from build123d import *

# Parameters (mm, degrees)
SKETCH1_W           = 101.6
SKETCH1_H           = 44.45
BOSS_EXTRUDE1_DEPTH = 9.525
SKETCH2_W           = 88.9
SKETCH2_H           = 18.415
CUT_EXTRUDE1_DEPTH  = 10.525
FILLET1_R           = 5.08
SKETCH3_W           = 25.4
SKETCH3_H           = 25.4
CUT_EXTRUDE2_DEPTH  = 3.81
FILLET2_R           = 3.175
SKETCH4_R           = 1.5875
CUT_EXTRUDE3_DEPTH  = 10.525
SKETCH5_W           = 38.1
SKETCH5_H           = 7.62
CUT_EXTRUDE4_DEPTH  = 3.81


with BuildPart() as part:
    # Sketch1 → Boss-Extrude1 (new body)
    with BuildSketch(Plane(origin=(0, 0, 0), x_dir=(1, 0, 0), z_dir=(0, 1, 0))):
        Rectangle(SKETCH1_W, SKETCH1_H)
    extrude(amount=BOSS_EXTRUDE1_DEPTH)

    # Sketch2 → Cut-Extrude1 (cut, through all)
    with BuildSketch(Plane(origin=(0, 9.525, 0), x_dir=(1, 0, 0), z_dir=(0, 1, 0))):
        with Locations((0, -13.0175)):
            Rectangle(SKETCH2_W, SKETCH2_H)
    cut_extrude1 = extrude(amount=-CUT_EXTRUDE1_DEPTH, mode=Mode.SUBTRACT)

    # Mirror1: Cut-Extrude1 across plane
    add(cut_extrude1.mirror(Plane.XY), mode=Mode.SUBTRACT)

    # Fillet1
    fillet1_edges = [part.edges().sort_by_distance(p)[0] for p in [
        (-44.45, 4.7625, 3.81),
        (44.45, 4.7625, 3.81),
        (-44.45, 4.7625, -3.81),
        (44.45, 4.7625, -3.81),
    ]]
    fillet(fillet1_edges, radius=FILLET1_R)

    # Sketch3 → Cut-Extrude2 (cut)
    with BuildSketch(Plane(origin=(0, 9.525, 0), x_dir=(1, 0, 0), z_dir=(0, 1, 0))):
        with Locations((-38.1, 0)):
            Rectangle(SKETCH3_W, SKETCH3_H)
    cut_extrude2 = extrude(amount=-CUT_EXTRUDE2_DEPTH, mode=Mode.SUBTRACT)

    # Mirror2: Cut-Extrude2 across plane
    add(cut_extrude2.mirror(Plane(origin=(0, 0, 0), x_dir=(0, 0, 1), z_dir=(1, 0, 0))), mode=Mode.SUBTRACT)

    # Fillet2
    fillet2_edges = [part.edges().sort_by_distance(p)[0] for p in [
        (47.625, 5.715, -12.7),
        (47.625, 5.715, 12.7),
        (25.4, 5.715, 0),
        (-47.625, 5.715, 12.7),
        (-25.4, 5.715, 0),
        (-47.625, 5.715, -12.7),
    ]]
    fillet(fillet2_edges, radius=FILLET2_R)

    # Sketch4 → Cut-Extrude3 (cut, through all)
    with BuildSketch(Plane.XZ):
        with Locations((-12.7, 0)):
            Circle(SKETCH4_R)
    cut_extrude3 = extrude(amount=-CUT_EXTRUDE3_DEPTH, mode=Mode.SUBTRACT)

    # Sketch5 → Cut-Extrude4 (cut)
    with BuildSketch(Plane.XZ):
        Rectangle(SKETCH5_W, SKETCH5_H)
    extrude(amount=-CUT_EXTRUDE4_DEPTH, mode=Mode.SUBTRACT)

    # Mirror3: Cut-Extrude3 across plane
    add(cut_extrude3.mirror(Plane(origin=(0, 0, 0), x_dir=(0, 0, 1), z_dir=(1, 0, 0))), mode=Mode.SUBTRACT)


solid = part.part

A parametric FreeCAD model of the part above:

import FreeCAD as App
import Part
import Sketcher

V = App.Vector
Q = App.Units.Quantity


def edges_at(feature, points):
    """Names of the edges that pass closest to the given points."""
    edges = feature.Shape.Edges
    near = lambda p: min(range(len(edges)), key=lambda i: edges[i].distToShape(Part.Vertex(*p))[0])
    return sorted({f"Edge{near(p) + 1}" for p in points})


def add_polygon(sketch, points):
    """Adds a closed chain of lines whose ends are joined by coincident constraints."""
    first, n = sketch.GeometryCount, len(points)
    for a, b in zip(points, points[1:] + points[:1]):
        sketch.addGeometry(Part.LineSegment(App.Vector(*a, 0), App.Vector(*b, 0)), False)
    for i in range(n):
        sketch.addConstraint(Sketcher.Constraint("Coincident", first + i, 2, first + (i + 1) % n, 1))

doc = App.newDocument("Part")
body = doc.addObject("PartDesign::Body", "Body")

# Sketch on XZ plane
sketch1 = body.newObject("Sketcher::SketchObject", "Sketch")
sketch1.AttachmentSupport = (doc.getObject("XZ_Plane"), [""])
sketch1.MapMode = "FlatFace"
add_polygon(sketch1, [(-50.8, -22.225), (-50.8, 22.225), (50.8, 22.225), (50.8, -22.225)])  # lines 0-3
sketch1.addConstraint([
    Sketcher.Constraint("Vertical", 0),
    Sketcher.Constraint("Horizontal", 1),
    Sketcher.Constraint("Vertical", 2),
    Sketcher.Constraint("Horizontal", 3),
    Sketcher.Constraint("Symmetric", 0, 2, 2, 2, -1, 1),
    Sketcher.Constraint("DistanceX", 1, 1, 1, 2, Q("4 in")),
    Sketcher.Constraint("DistanceY", 0, 1, 0, 2, Q("1.75 in")),
])
pad1 = body.newObject("PartDesign::Pad", "Pad")
pad1.Profile = sketch1
pad1.Length = Q("0.375 in")
pad1.Reversed = True

# Sketch on XZ plane
sketch2 = body.newObject("Sketcher::SketchObject", "Sketch001")
sketch2.AttachmentSupport = (doc.getObject("XZ_Plane"), [""])
sketch2.MapMode = "FlatFace"
sketch2.AttachmentOffset = App.Placement(V(0, 0, -0.375 * 25.4), App.Rotation())
add_polygon(sketch2, [(-44.45, 3.81), (-44.45, 22.225), (44.45, 22.225), (44.45, 3.81)])  # lines 0-3
sketch2.addConstraint([
    Sketcher.Constraint("Vertical", 0),
    Sketcher.Constraint("Horizontal", 1),
    Sketcher.Constraint("Vertical", 2),
    Sketcher.Constraint("Horizontal", 3),
    Sketcher.Constraint("DistanceX", 1, 1, 1, 2, Q("3.5 in")),
    Sketcher.Constraint("DistanceY", 0, 1, 0, 2, Q("0.725 in")),
    Sketcher.Constraint("DistanceX", 0, 2, -1, 1, Q("1.75 in")),
    Sketcher.Constraint("DistanceY", -1, 1, 2, 2, Q("0.15 in")),
])
pocket1 = body.newObject("PartDesign::Pocket", "Pocket")
pocket1.Profile = sketch2
pocket1.Type = "ThroughAll"
pocket1.Reversed = True
doc.recompute()

mirrored = body.newObject("PartDesign::Mirrored", "Mirrored")
mirrored.Originals = [pocket1]
mirrored.MirrorPlane = (doc.getObject("XY_Plane"), [""])
body.Tip = mirrored
doc.recompute()

fillet = body.newObject("PartDesign::Fillet", "Fillet")
fillet.Base = (mirrored, edges_at(mirrored, [
    (-44.45, 4.763, 3.81),
    (44.45, 4.763, 3.81),
    (-44.45, 4.763, -3.81),
    (44.45, 4.763, -3.81),
]))
fillet.Radius = Q("0.2 in")

# Sketch on XZ plane
sketch3 = body.newObject("Sketcher::SketchObject", "Sketch002")
sketch3.AttachmentSupport = (doc.getObject("XZ_Plane"), [""])
sketch3.MapMode = "FlatFace"
sketch3.AttachmentOffset = App.Placement(V(0, 0, -0.375 * 25.4), App.Rotation())
add_polygon(sketch3, [(-50.8, -12.7), (-50.8, 12.7), (-25.4, 12.7), (-25.4, -12.7)])  # lines 0-3
sketch3.addConstraint([
    Sketcher.Constraint("Vertical", 0),
    Sketcher.Constraint("Horizontal", 1),
    Sketcher.Constraint("Vertical", 2),
    Sketcher.Constraint("Horizontal", 3),
    Sketcher.Constraint("Equal", 3, 0),
    Sketcher.Constraint("DistanceX", 1, 1, 1, 2, Q("1 in")),
    Sketcher.Constraint("DistanceX", 0, 2, -1, 1, Q("2 in")),
    Sketcher.Constraint("DistanceY", -1, 1, 0, 2, Q("0.5 in")),
])
pocket2 = body.newObject("PartDesign::Pocket", "Pocket001")
pocket2.Profile = sketch3
pocket2.Length = Q("0.15 in")
pocket2.Reversed = True
doc.recompute()

mirrored2 = body.newObject("PartDesign::Mirrored", "Mirrored001")
mirrored2.Originals = [pocket2]
mirrored2.MirrorPlane = (doc.getObject("YZ_Plane"), [""])
body.Tip = mirrored2
doc.recompute()

fillet2 = body.newObject("PartDesign::Fillet", "Fillet001")
fillet2.Base = (mirrored2, edges_at(mirrored2, [
    (47.625, 5.715, -12.7),
    (47.625, 5.715, 12.7),
    (25.4, 5.715, 0),
    (-47.625, 5.715, 12.7),
    (-25.4, 5.715, 0),
    (-47.625, 5.715, -12.7),
]))
fillet2.Radius = Q("0.125 in")

# Sketch on XZ plane
sketch4 = body.newObject("Sketcher::SketchObject", "Sketch003")
sketch4.AttachmentSupport = (doc.getObject("XZ_Plane"), [""])
sketch4.MapMode = "FlatFace"
sketch4.addGeometry(Part.Circle(V(-12.7, 0, 0), V(0, 0, 1), 1.5875), False)
sketch4.addConstraint([
    Sketcher.Constraint("PointOnObject", 0, 3, -1),
    Sketcher.Constraint("Diameter", 0, Q("0.125 in")),
    Sketcher.Constraint("DistanceX", 0, 3, -1, 1, Q("0.5 in")),
])
pocket3 = body.newObject("PartDesign::Pocket", "Pocket002")
pocket3.Profile = sketch4
pocket3.Type = "ThroughAll"

# Sketch on XZ plane
sketch5 = body.newObject("Sketcher::SketchObject", "Sketch004")
sketch5.AttachmentSupport = (doc.getObject("XZ_Plane"), [""])
sketch5.MapMode = "FlatFace"
add_polygon(sketch5, [(-19.05, 3.81), (-19.05, -3.81), (19.05, -3.81), (19.05, 3.81)])  # lines 0-3
sketch5.addConstraint([
    Sketcher.Constraint("Vertical", 0),
    Sketcher.Constraint("Horizontal", 1),
    Sketcher.Constraint("Vertical", 2),
    Sketcher.Constraint("Horizontal", 3),
    Sketcher.Constraint("Symmetric", 0, 2, 2, 2, -1, 1),
    Sketcher.Constraint("DistanceX", 1, 1, 1, 2, Q("1.5 in")),
    Sketcher.Constraint("DistanceY", 0, 2, 0, 1, Q("0.3 in")),
])
pocket4 = body.newObject("PartDesign::Pocket", "Pocket003")
pocket4.Profile = sketch5
pocket4.Length = Q("0.15 in")
doc.recompute()

mirrored3 = body.newObject("PartDesign::Mirrored", "Mirrored002")
mirrored3.Originals = [pocket3]
mirrored3.MirrorPlane = (doc.getObject("YZ_Plane"), [""])
body.Tip = mirrored3

doc.recompute()
